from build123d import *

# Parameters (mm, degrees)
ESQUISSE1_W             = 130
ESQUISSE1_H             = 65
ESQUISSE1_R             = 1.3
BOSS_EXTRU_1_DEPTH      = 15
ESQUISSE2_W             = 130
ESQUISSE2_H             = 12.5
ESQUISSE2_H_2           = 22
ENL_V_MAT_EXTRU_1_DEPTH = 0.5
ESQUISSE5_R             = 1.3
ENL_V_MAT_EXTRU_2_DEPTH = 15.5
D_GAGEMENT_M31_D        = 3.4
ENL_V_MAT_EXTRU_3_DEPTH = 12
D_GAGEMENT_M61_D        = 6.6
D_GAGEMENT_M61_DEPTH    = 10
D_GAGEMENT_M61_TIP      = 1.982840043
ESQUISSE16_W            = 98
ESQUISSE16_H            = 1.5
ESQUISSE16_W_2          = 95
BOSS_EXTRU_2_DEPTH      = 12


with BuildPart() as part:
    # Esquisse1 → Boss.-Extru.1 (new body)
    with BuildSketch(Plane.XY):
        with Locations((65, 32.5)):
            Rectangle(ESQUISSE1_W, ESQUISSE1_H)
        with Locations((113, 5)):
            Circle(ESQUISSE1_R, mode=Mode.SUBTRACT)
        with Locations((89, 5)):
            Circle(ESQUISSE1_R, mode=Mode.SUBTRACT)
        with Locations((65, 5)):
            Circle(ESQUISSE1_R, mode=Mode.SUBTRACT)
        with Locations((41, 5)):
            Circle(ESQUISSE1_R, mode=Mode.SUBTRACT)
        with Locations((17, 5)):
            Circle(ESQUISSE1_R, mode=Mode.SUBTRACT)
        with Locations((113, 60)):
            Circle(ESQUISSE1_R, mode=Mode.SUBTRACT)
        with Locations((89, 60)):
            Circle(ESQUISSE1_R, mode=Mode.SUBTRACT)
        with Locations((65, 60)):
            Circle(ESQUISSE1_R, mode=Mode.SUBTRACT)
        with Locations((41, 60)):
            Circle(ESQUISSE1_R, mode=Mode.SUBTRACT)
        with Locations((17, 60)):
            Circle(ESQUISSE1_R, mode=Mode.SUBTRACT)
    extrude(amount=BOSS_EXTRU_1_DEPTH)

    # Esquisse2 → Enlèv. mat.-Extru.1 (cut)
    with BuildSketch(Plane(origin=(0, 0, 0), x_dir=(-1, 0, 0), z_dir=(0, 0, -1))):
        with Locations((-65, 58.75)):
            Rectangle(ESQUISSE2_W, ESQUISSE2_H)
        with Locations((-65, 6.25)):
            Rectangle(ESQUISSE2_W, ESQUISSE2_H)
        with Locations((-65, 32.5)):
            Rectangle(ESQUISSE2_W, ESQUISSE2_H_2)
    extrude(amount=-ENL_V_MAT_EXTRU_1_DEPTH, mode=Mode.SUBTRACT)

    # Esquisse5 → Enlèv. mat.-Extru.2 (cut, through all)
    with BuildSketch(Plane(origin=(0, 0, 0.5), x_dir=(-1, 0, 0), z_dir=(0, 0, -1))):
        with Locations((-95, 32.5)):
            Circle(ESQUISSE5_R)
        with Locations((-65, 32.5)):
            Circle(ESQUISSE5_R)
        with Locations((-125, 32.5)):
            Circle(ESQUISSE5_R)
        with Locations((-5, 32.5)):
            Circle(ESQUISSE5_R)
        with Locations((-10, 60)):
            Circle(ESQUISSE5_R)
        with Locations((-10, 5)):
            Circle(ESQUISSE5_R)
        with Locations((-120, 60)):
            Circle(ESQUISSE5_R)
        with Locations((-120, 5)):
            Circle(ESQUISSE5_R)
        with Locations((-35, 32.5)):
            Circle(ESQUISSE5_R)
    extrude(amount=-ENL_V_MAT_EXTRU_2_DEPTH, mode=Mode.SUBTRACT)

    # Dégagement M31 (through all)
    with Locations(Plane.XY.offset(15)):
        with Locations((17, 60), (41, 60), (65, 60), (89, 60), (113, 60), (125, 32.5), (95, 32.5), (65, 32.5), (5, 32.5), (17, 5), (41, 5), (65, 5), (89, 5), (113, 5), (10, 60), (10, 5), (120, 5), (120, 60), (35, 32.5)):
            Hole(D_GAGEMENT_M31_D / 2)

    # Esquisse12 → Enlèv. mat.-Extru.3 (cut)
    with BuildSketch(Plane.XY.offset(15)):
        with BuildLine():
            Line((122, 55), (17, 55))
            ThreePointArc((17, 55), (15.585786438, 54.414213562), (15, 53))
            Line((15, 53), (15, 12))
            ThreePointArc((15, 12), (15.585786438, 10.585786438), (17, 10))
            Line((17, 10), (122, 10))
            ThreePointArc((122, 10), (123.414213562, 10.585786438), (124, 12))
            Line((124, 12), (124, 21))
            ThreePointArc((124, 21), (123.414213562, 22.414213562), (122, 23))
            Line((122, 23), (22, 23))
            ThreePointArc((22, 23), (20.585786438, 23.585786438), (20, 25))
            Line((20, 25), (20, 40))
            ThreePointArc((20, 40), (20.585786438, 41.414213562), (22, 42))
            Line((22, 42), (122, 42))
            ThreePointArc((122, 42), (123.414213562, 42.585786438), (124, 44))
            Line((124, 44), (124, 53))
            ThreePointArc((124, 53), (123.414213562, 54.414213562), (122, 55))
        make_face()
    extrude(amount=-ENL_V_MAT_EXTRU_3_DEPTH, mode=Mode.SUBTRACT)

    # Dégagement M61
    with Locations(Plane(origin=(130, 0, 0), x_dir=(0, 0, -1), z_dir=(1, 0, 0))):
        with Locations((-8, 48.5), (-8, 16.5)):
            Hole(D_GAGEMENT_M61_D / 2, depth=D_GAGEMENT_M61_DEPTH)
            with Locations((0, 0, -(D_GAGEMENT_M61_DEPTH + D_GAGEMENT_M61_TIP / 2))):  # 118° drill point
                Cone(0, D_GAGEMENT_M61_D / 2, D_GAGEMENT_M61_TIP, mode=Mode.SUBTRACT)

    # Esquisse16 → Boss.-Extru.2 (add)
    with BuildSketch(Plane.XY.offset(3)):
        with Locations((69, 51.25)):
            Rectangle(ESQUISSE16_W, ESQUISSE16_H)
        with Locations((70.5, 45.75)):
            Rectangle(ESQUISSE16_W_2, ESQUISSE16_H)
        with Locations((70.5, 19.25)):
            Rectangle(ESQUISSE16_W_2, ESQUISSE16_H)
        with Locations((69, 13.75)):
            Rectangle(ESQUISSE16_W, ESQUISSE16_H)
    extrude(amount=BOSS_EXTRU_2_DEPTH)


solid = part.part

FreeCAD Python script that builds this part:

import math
import FreeCAD as App
import Part
import Sketcher
Q = App.Units.Quantity


def add_polygon(sketch, points):
    """Adds a closed chain of lines whose ends are joined by coincident constraints."""
    first, n = sketch.GeometryCount, len(points)
    for a, b in zip(points, points[1:] + points[:1]):
        sketch.addGeometry(Part.LineSegment(App.Vector(*a, 0), App.Vector(*b, 0)), False)
    for i in range(n):
        sketch.addConstraint(Sketcher.Constraint("Coincident", first + i, 2, first + (i + 1) % n, 1))

doc = App.newDocument("Part")
body = doc.addObject("PartDesign::Body", "Body")

sketch1 = body.newObject("Sketcher::SketchObject", "Sketch")
sketch1.AttachmentSupport = (doc.getObject("XY_Plane"), [""])
sketch1.MapMode = "FlatFace"
add_polygon(sketch1, [(0, 65), (0, 0), (130, 0), (130, 65)])
sketch1.addGeometry(Part.Circle(App.Vector(17, 5, 0), App.Vector(0, 0, 1), 1.3), False)
sketch1.addGeometry(Part.Circle(App.Vector(41, 5, 0), App.Vector(0, 0, 1), 1.3), False)
sketch1.addGeometry(Part.Circle(App.Vector(65, 5, 0), App.Vector(0, 0, 1), 1.3), False)
sketch1.addGeometry(Part.Circle(App.Vector(89, 5, 0), App.Vector(0, 0, 1), 1.3), False)
sketch1.addGeometry(Part.Circle(App.Vector(113, 5, 0), App.Vector(0, 0, 1), 1.3), False)
sketch1.addGeometry(Part.Circle(App.Vector(17, 60, 0), App.Vector(0, 0, 1), 1.3), False)
sketch1.addGeometry(Part.Circle(App.Vector(41, 60, 0), App.Vector(0, 0, 1), 1.3), False)
sketch1.addGeometry(Part.Circle(App.Vector(65, 60, 0), App.Vector(0, 0, 1), 1.3), False)
sketch1.addGeometry(Part.Circle(App.Vector(89, 60, 0), App.Vector(0, 0, 1), 1.3), False)
sketch1.addGeometry(Part.Circle(App.Vector(113, 60, 0), App.Vector(0, 0, 1), 1.3), False)
sketch1.addConstraint([
    Sketcher.Constraint("Vertical", 0),
    Sketcher.Constraint("Horizontal", 1),
    Sketcher.Constraint("Vertical", 2),
    Sketcher.Constraint("Horizontal", 3),
    Sketcher.Constraint("Coincident", 0, 2, -1, 1),
    Sketcher.Constraint("Equal", 4, 5),
    Sketcher.Constraint("Equal", 5, 6),
    Sketcher.Constraint("Equal", 6, 7),
    Sketcher.Constraint("Equal", 7, 8),
    Sketcher.Constraint("Equal", 8, 9),
    Sketcher.Constraint("Equal", 9, 10),
    Sketcher.Constraint("Equal", 10, 11),
    Sketcher.Constraint("Equal", 11, 12),
    Sketcher.Constraint("Equal", 12, 13),
    Sketcher.Constraint("Horizontal", 4, 3, 5, 3),
    Sketcher.Constraint("Horizontal", 5, 3, 6, 3),
    Sketcher.Constraint("Horizontal", 6, 3, 7, 3),
    Sketcher.Constraint("Horizontal", 7, 3, 8, 3),
    Sketcher.Constraint("Horizontal", 9, 3, 10, 3),
    Sketcher.Constraint("Horizontal", 10, 3, 11, 3),
    Sketcher.Constraint("Horizontal", 11, 3, 12, 3),
    Sketcher.Constraint("Horizontal", 12, 3, 13, 3),
    Sketcher.Constraint("Vertical", 4, 3, 9, 3),
    Sketcher.Constraint("Vertical", 5, 3, 10, 3),
    Sketcher.Constraint("Vertical", 6, 3, 11, 3),
    Sketcher.Constraint("Vertical", 7, 3, 12, 3),
    Sketcher.Constraint("Vertical", 8, 3, 13, 3),
    Sketcher.Constraint("Diameter", 4, Q("2.6 mm")),
    Sketcher.Constraint("DistanceX", 1, 1, 1, 2, Q("130 mm")),
    Sketcher.Constraint("DistanceY", 0, 2, 0, 1, Q("65 mm")),
    Sketcher.Constraint("DistanceX", -1, 1, 4, 3, Q("17 mm")),
    Sketcher.Constraint("DistanceY", -1, 1, 4, 3, Q("5 mm")),
    Sketcher.Constraint("DistanceX", -1, 1, 5, 3, Q("41 mm")),
    Sketcher.Constraint("DistanceX", -1, 1, 6, 3, Q("65 mm")),
    Sketcher.Constraint("DistanceX", -1, 1, 7, 3, Q("89 mm")),
    Sketcher.Constraint("DistanceX", -1, 1, 8, 3, Q("113 mm")),
    Sketcher.Constraint("DistanceY", -1, 1, 9, 3, Q("60 mm")),
])
pad1 = body.newObject("PartDesign::Pad", "Pad")
pad1.Profile = sketch1
pad1.Length = 15

sketch2 = body.newObject("Sketcher::SketchObject", "Sketch001")
sketch2.AttachmentSupport = (doc.getObject("XY_Plane"), [""])
sketch2.MapMode = "FlatFace"
add_polygon(sketch2, [(130, 65), (130, 52), (0, 52), (0, 65)])
add_polygon(sketch2, [(130, 12), (130, 0), (0, 0), (0, 12)])
add_polygon(sketch2, [(130, 44), (130, 22), (0, 22), (0, 44)])
sketch2.addConstraint([
    Sketcher.Constraint("Vertical", 0),
    Sketcher.Constraint("Horizontal", 1),
    Sketcher.Constraint("Vertical", 2),
    Sketcher.Constraint("Horizontal", 3),
    Sketcher.Constraint("Vertical", 4),
    Sketcher.Constraint("Horizontal", 5),
    Sketcher.Constraint("Vertical", 6),
    Sketcher.Constraint("Horizontal", 7),
    Sketcher.Constraint("Vertical", 8),
    Sketcher.Constraint("Horizontal", 9),
    Sketcher.Constraint("Vertical", 10),
    Sketcher.Constraint("Horizontal", 11),
    Sketcher.Constraint("Coincident", 5, 2, -1, 1),
    Sketcher.Constraint("PointOnObject", 1, 2, -2),
    Sketcher.Constraint("PointOnObject", 9, 2, -2),
    Sketcher.Constraint("Vertical", 3, 2, 4, 2),
    Sketcher.Constraint("Vertical", 7, 2, 8, 2),
    Sketcher.Constraint("Equal", 2, 4),
    Sketcher.Constraint("DistanceX", 1, 2, 1, 1, Q("130 mm")),
    Sketcher.Constraint("DistanceY", 8, 2, 8, 1, Q("22 mm")),
    Sketcher.Constraint("DistanceY", 0, 2, 0, 1, Q("12.5 mm")),
    Sketcher.Constraint("DistanceY", -1, 1, 2, 2, Q("65 mm")),
    Sketcher.Constraint("DistanceY", 7, 2, 8, 2, Q("9 mm")),
])
pocket1 = body.newObject("PartDesign::Pocket", "Pocket")
pocket1.Profile = sketch2
pocket1.Length = 0.5
pocket1.Reversed = True

sketch3 = body.newObject("Sketcher::SketchObject", "Sketch002")
sketch3.AttachmentSupport = (doc.getObject("XY_Plane"), [""])
sketch3.MapMode = "FlatFace"
sketch3.AttachmentOffset = App.Placement(App.Vector(0, 0, 0.5), App.Rotation())
sketch3.addGeometry([
    Part.Circle(App.Vector(95, 32.5, 0), App.Vector(0, 0, 1), 1.3),
    Part.Circle(App.Vector(65, 32.5, 0), App.Vector(0, 0, 1), 1.3),
    Part.Circle(App.Vector(125, 32.5, 0), App.Vector(0, 0, 1), 1.3),
    Part.Circle(App.Vector(5, 32.5, 0), App.Vector(0, 0, 1), 1.3),
    Part.Circle(App.Vector(10, 60, 0), App.Vector(0, 0, 1), 1.3),
    Part.Circle(App.Vector(10, 5, 0), App.Vector(0, 0, 1), 1.3),
    Part.Circle(App.Vector(120, 60, 0), App.Vector(0, 0, 1), 1.3),
    Part.Circle(App.Vector(120, 5, 0), App.Vector(0, 0, 1), 1.3),
    Part.Circle(App.Vector(35, 32.5, 0), App.Vector(0, 0, 1), 1.3),
], False)
sketch3.addConstraint([
    Sketcher.Constraint("Equal", 0, 1),
    Sketcher.Constraint("Equal", 1, 2),
    Sketcher.Constraint("Equal", 2, 3),
    Sketcher.Constraint("Equal", 3, 4),
    Sketcher.Constraint("Equal", 4, 5),
    Sketcher.Constraint("Equal", 5, 6),
    Sketcher.Constraint("Equal", 6, 7),
    Sketcher.Constraint("Equal", 7, 8),
    Sketcher.Constraint("Horizontal", 0, 3, 1, 3),
    Sketcher.Constraint("Horizontal", 1, 3, 2, 3),
    Sketcher.Constraint("Horizontal", 2, 3, 3, 3),
    Sketcher.Constraint("Horizontal", 4, 3, 6, 3),
    Sketcher.Constraint("Horizontal", 5, 3, 7, 3),
    Sketcher.Constraint("Horizontal", 3, 3, 8, 3),
    Sketcher.Constraint("Vertical", 4, 3, 5, 3),
    Sketcher.Constraint("Vertical", 6, 3, 7, 3),
    Sketcher.Constraint("Diameter", 0, Q("2.6 mm")),
    Sketcher.Constraint("DistanceX", -1, 1, 0, 3, Q("95 mm")),
    Sketcher.Constraint("DistanceX", -1, 1, 1, 3, Q("65 mm")),
    Sketcher.Constraint("DistanceX", -1, 1, 2, 3, Q("125 mm")),
    Sketcher.Constraint("DistanceX", -1, 1, 3, 3, Q("5 mm")),
    Sketcher.Constraint("DistanceX", -1, 1, 4, 3, Q("10 mm")),
    Sketcher.Constraint("DistanceY", -1, 1, 4, 3, Q("60 mm")),
    Sketcher.Constraint("DistanceY", -1, 1, 5, 3, Q("5 mm")),
    Sketcher.Constraint("DistanceX", -1, 1, 6, 3, Q("120 mm")),
    Sketcher.Constraint("DistanceX", -1, 1, 8, 3, Q("35 mm")),
    Sketcher.Constraint("DistanceY", -1, 1, 0, 3, Q("32.5 mm")),
])
pocket2 = body.newObject("PartDesign::Pocket", "Pocket001")
pocket2.Profile = sketch3
pocket2.Type = "ThroughAll"
pocket2.Reversed = True

sketch4 = body.newObject("Sketcher::SketchObject", "Sketch003")
sketch4.AttachmentSupport = (doc.getObject("XY_Plane"), [""])
sketch4.MapMode = "FlatFace"
sketch4.AttachmentOffset = App.Placement(App.Vector(0, 0, 15), App.Rotation())
sketch4.addGeometry([
    Part.Circle(App.Vector(17, 60, 0), App.Vector(0, 0, 1), 1.7),
    Part.Circle(App.Vector(41, 60, 0), App.Vector(0, 0, 1), 1.7),
    Part.Circle(App.Vector(65, 60, 0), App.Vector(0, 0, 1), 1.7),
    Part.Circle(App.Vector(89, 60, 0), App.Vector(0, 0, 1), 1.7),
    Part.Circle(App.Vector(113, 60, 0), App.Vector(0, 0, 1), 1.7),
    Part.Circle(App.Vector(125, 32.5, 0), App.Vector(0, 0, 1), 1.7),
    Part.Circle(App.Vector(95, 32.5, 0), App.Vector(0, 0, 1), 1.7),
    Part.Circle(App.Vector(65, 32.5, 0), App.Vector(0, 0, 1), 1.7),
    Part.Circle(App.Vector(5, 32.5, 0), App.Vector(0, 0, 1), 1.7),
    Part.Circle(App.Vector(17, 5, 0), App.Vector(0, 0, 1), 1.7),
    Part.Circle(App.Vector(41, 5, 0), App.Vector(0, 0, 1), 1.7),
    Part.Circle(App.Vector(65, 5, 0), App.Vector(0, 0, 1), 1.7),
    Part.Circle(App.Vector(89, 5, 0), App.Vector(0, 0, 1), 1.7),
    Part.Circle(App.Vector(113, 5, 0), App.Vector(0, 0, 1), 1.7),
    Part.Circle(App.Vector(10, 60, 0), App.Vector(0, 0, 1), 1.7),
    Part.Circle(App.Vector(10, 5, 0), App.Vector(0, 0, 1), 1.7),
    Part.Circle(App.Vector(120, 5, 0), App.Vector(0, 0, 1), 1.7),
    Part.Circle(App.Vector(120, 60, 0), App.Vector(0, 0, 1), 1.7),
    Part.Circle(App.Vector(35, 32.5, 0), App.Vector(0, 0, 1), 1.7),
], False)
sketch4.addConstraint([
    Sketcher.Constraint("Equal", 0, 1),
    Sketcher.Constraint("Equal", 1, 2),
    Sketcher.Constraint("Equal", 2, 3),
    Sketcher.Constraint("Equal", 3, 4),
    Sketcher.Constraint("Equal", 4, 5),
    Sketcher.Constraint("Equal", 5, 6),
    Sketcher.Constraint("Equal", 6, 7),
    Sketcher.Constraint("Equal", 7, 8),
    Sketcher.Constraint("Equal", 8, 9),
    Sketcher.Constraint("Equal", 9, 10),
    Sketcher.Constraint("Equal", 10, 11),
    Sketcher.Constraint("Equal", 11, 12),
    Sketcher.Constraint("Equal", 12, 13),
    Sketcher.Constraint("Equal", 13, 14),
    Sketcher.Constraint("Equal", 14, 15),
    Sketcher.Constraint("Equal", 15, 16),
    Sketcher.Constraint("Equal", 16, 17),
    Sketcher.Constraint("Equal", 17, 18),
    Sketcher.Constraint("Horizontal", 0, 3, 1, 3),
    Sketcher.Constraint("Horizontal", 1, 3, 2, 3),
    Sketcher.Constraint("Horizontal", 2, 3, 3, 3),
    Sketcher.Constraint("Horizontal", 3, 3, 4, 3),
    Sketcher.Constraint("Horizontal", 5, 3, 6, 3),
    Sketcher.Constraint("Horizontal", 6, 3, 7, 3),
    Sketcher.Constraint("Horizontal", 7, 3, 8, 3),
    Sketcher.Constraint("Horizontal", 9, 3, 10, 3),
    Sketcher.Constraint("Horizontal", 10, 3, 11, 3),
    Sketcher.Constraint("Horizontal", 11, 3, 12, 3),
    Sketcher.Constraint("Horizontal", 12, 3, 13, 3),
    Sketcher.Constraint("Horizontal", 4, 3, 14, 3),
    Sketcher.Constraint("Horizontal", 13, 3, 15, 3),
    Sketcher.Constraint("Horizontal", 15, 3, 16, 3),
    Sketcher.Constraint("Horizontal", 14, 3, 17, 3),
    Sketcher.Constraint("Horizontal", 8, 3, 18, 3),
    Sketcher.Constraint("Vertical", 2, 3, 7, 3),
    Sketcher.Constraint("Vertical", 0, 3, 9, 3),
    Sketcher.Constraint("Vertical", 1, 3, 10, 3),
    Sketcher.Constraint("Vertical", 7, 3, 11, 3),
    Sketcher.Constraint("Vertical", 3, 3, 12, 3),
    Sketcher.Constraint("Vertical", 4, 3, 13, 3),
    Sketcher.Constraint("Vertical", 14, 3, 15, 3),
    Sketcher.Constraint("Vertical", 16, 3, 17, 3),
    Sketcher.Constraint("Diameter", 0, Q("3.4 mm")),
    Sketcher.Constraint("DistanceX", -1, 1, 0, 3, Q("17 mm")),
    Sketcher.Constraint("DistanceY", -1, 1, 0, 3, Q("60 mm")),
    Sketcher.Constraint("DistanceX", -1, 1, 1, 3, Q("41 mm")),
    Sketcher.Constraint("DistanceX", -1, 1, 2, 3, Q("65 mm")),
    Sketcher.Constraint("DistanceX", -1, 1, 3, 3, Q("89 mm")),
    Sketcher.Constraint("DistanceX", -1, 1, 4, 3, Q("113 mm")),
    Sketcher.Constraint("DistanceX", -1, 1, 5, 3, Q("125 mm")),
    Sketcher.Constraint("DistanceX", -1, 1, 6, 3, Q("95 mm")),
    Sketcher.Constraint("DistanceX", -1, 1, 8, 3, Q("5 mm")),
    Sketcher.Constraint("DistanceY", -1, 1, 9, 3, Q("5 mm")),
    Sketcher.Constraint("DistanceX", -1, 1, 14, 3, Q("10 mm")),
    Sketcher.Constraint("DistanceX", -1, 1, 16, 3, Q("120 mm")),
    Sketcher.Constraint("DistanceX", -1, 1, 18, 3, Q("35 mm")),
    Sketcher.Constraint("DistanceY", -1, 1, 5, 3, Q("32.5 mm")),
])
doc.recompute()
hole = body.newObject("PartDesign::Hole", "Hole")
hole.Profile = sketch4
hole.ThreadType = "None"
hole.Diameter = 3.4
hole.DepthType = "ThroughAll"

sketch5 = body.newObject("Sketcher::SketchObject", "Sketch004")
sketch5.AttachmentSupport = (doc.getObject("XY_Plane"), [""])
sketch5.MapMode = "FlatFace"
sketch5.AttachmentOffset = App.Placement(App.Vector(0, 0, 15), App.Rotation())
sketch5.addGeometry([
    Part.LineSegment(App.Vector(122, 55, 0), App.Vector(17, 55, 0)),
    Part.ArcOfCircle(Part.Circle(App.Vector(17, 53, 0), App.Vector(0, 0, 1), 2), math.radians(90), math.radians(180)),
    Part.LineSegment(App.Vector(15, 53, 0), App.Vector(15, 12, 0)),
    Part.ArcOfCircle(Part.Circle(App.Vector(17, 12, 0), App.Vector(0, 0, 1), 2), math.radians(-180), math.radians(-90)),
    Part.LineSegment(App.Vector(17, 10, 0), App.Vector(122, 10, 0)),
    Part.ArcOfCircle(Part.Circle(App.Vector(122, 12, 0), App.Vector(0, 0, 1), 2), math.radians(-90), math.radians(0)),
    Part.LineSegment(App.Vector(124, 12, 0), App.Vector(124, 21, 0)),
    Part.ArcOfCircle(Part.Circle(App.Vector(122, 21, 0), App.Vector(0, 0, 1), 2), math.radians(0), math.radians(90)),
    Part.LineSegment(App.Vector(122, 23, 0), App.Vector(22, 23, 0)),
    Part.ArcOfCircle(Part.Circle(App.Vector(22, 25, 0), App.Vector(0, 0, 1), 2), math.radians(-180), math.radians(-90)),
    Part.LineSegment(App.Vector(20, 25, 0), App.Vector(20, 40, 0)),
    Part.ArcOfCircle(Part.Circle(App.Vector(22, 40, 0), App.Vector(0, 0, 1), 2), math.radians(90), math.radians(180)),
    Part.LineSegment(App.Vector(22, 42, 0), App.Vector(122, 42, 0)),
    Part.ArcOfCircle(Part.Circle(App.Vector(122, 44, 0), App.Vector(0, 0, 1), 2), math.radians(-90), math.radians(0)),
    Part.LineSegment(App.Vector(124, 44, 0), App.Vector(124, 53, 0)),
    Part.ArcOfCircle(Part.Circle(App.Vector(122, 53, 0), App.Vector(0, 0, 1), 2), math.radians(0), math.radians(90)),
], False)
sketch5.addConstraint([
    Sketcher.Constraint("Tangent", 0, 2, 1, 1),
    Sketcher.Constraint("Tangent", 1, 2, 2, 1),
    Sketcher.Constraint("Tangent", 2, 2, 3, 1),
    Sketcher.Constraint("Tangent", 3, 2, 4, 1),
    Sketcher.Constraint("Tangent", 4, 2, 5, 1),
    Sketcher.Constraint("Tangent", 5, 2, 6, 1),
    Sketcher.Constraint("Tangent", 6, 2, 7, 1),
    Sketcher.Constraint("Tangent", 7, 2, 8, 1),
    Sketcher.Constraint("Tangent", 8, 2, 9, 2),
    Sketcher.Constraint("Tangent", 9, 1, 10, 1),
    Sketcher.Constraint("Tangent", 10, 2, 11, 2),
    Sketcher.Constraint("Tangent", 11, 1, 12, 1),
    Sketcher.Constraint("Tangent", 12, 2, 13, 1),
    Sketcher.Constraint("Tangent", 13, 2, 14, 1),
    Sketcher.Constraint("Tangent", 14, 2, 15, 1),
    Sketcher.Constraint("Tangent", 15, 2, 0, 1),
    Sketcher.Constraint("Horizontal", 0),
    Sketcher.Constraint("Vertical", 2),
    Sketcher.Constraint("Horizontal", 4),
    Sketcher.Constraint("Vertical", 6),
    Sketcher.Constraint("Horizontal", 8),
    Sketcher.Constraint("Vertical", 10),
    Sketcher.Constraint("Horizontal", 12),
    Sketcher.Constraint("Vertical", 14),
    Sketcher.Constraint("Equal", 1, 3),
    Sketcher.Constraint("Equal", 3, 5),
    Sketcher.Constraint("Equal", 5, 7),
    Sketcher.Constraint("Equal", 7, 9),
    Sketcher.Constraint("Equal", 9, 11),
    Sketcher.Constraint("Equal", 11, 13),
    Sketcher.Constraint("Equal", 13, 15),
    Sketcher.Constraint("Vertical", 7, 3, 13, 3),
    Sketcher.Constraint("Equal", 6, 14),
    Sketcher.Constraint("Radius", 1, Q("2 mm")),
    Sketcher.Constraint("DistanceX", 0, 2, 0, 1, Q("105 mm")),
    Sketcher.Constraint("DistanceX", 8, 2, 8, 1, Q("100 mm")),
    Sketcher.Constraint("DistanceY", 2, 2, 2, 1, Q("41 mm")),
    Sketcher.Constraint("DistanceY", 6, 1, 6, 2, Q("9 mm")),
    Sketcher.Constraint("DistanceX", -1, 1, 1, 3, Q("17 mm")),
    Sketcher.Constraint("DistanceY", -1, 1, 1, 3, Q("53 mm")),
])
pocket3 = body.newObject("PartDesign::Pocket", "Pocket002")
pocket3.Profile = sketch5
pocket3.Length = 12

sketch6 = body.newObject("Sketcher::SketchObject", "Sketch005")
sketch6.AttachmentSupport = (doc.getObject("YZ_Plane"), [""])
sketch6.MapMode = "FlatFace"
sketch6.AttachmentOffset = App.Placement(App.Vector(0, 0, 130), App.Rotation())
sketch6.addGeometry([
    Part.Circle(App.Vector(48.5, 8, 0), App.Vector(0, 0, 1), 3.3),
    Part.Circle(App.Vector(16.5, 8, 0), App.Vector(0, 0, 1), 3.3),
], False)
sketch6.addConstraint([
    Sketcher.Constraint("Equal", 0, 1),
    Sketcher.Constraint("Horizontal", 0, 3, 1, 3),
    Sketcher.Constraint("Diameter", 0, Q("6.6 mm")),
    Sketcher.Constraint("DistanceY", -1, 1, 0, 3, Q("8 mm")),
    Sketcher.Constraint("DistanceX", 1, 3, 0, 3, Q("32 mm")),
    Sketcher.Constraint("DistanceX", -1, 1, 0, 3, Q("48.5 mm")),
])
doc.recompute()
hole2 = body.newObject("PartDesign::Hole", "Hole001")
hole2.Profile = sketch6
hole2.ThreadType = "None"
hole2.Diameter = 6.6
hole2.DepthType = "Dimension"
hole2.Depth = 10
hole2.DrillPoint = "Angled"
hole2.DrillPointAngle = 118

sketch7 = body.newObject("Sketcher::SketchObject", "Sketch006")
sketch7.AttachmentSupport = (doc.getObject("XY_Plane"), [""])
sketch7.MapMode = "FlatFace"
sketch7.AttachmentOffset = App.Placement(App.Vector(0, 0, 3), App.Rotation())
add_polygon(sketch7, [(20, 52), (20, 50.5), (118, 50.5), (118, 52)])
add_polygon(sketch7, [(23, 46.5), (23, 45), (118, 45), (118, 46.5)])
add_polygon(sketch7, [(23, 20), (23, 18.5), (118, 18.5), (118, 20)])
add_polygon(sketch7, [(20, 14.5), (20, 13), (118, 13), (118, 14.5)])
sketch7.addConstraint([
    Sketcher.Constraint("Vertical", 0),
    Sketcher.Constraint("Horizontal", 1),
    Sketcher.Constraint("Vertical", 2),
    Sketcher.Constraint("Horizontal", 3),
    Sketcher.Constraint("Vertical", 4),
    Sketcher.Constraint("Horizontal", 5),
    Sketcher.Constraint("Vertical", 6),
    Sketcher.Constraint("Horizontal", 7),
    Sketcher.Constraint("Vertical", 8),
    Sketcher.Constraint("Horizontal", 9),
    Sketcher.Constraint("Vertical", 10),
    Sketcher.Constraint("Horizontal", 11),
    Sketcher.Constraint("Vertical", 12),
    Sketcher.Constraint("Horizontal", 13),
    Sketcher.Constraint("Vertical", 14),
    Sketcher.Constraint("Horizontal", 15),
    Sketcher.Constraint("Vertical", 2, 2, 5, 2),
    Sketcher.Constraint("Vertical", 7, 2, 8, 2),
    Sketcher.Constraint("Vertical", 6, 2, 9, 2),
    Sketcher.Constraint("Vertical", 3, 2, 12, 2),
    Sketcher.Constraint("Vertical", 10, 2, 13, 2),
    Sketcher.Constraint("Equal", 2, 4),
    Sketcher.Constraint("Equal", 6, 8),
    Sketcher.Constraint("Equal", 10, 12),
    Sketcher.Constraint("DistanceX", 1, 1, 1, 2, Q("98 mm")),
    Sketcher.Constraint("DistanceX", 5, 1, 5, 2, Q("95 mm")),
    Sketcher.Constraint("DistanceY", 0, 2, 0, 1, Q("1.5 mm")),
    Sketcher.Constraint("DistanceX", -1, 1, 0, 2, Q("20 mm")),
    Sketcher.Constraint("DistanceY", -1, 1, 2, 2, Q("52 mm")),
    Sketcher.Constraint("DistanceY", -1, 1, 4, 2, Q("45 mm")),
    Sketcher.Constraint("DistanceY", -1, 1, 10, 2, Q("20 mm")),
    Sketcher.Constraint("DistanceY", -1, 1, 12, 2, Q("13 mm")),
])
pad2 = body.newObject("PartDesign::Pad", "Pad001")
pad2.Profile = sketch7
pad2.Length = 12

doc.recompute()
